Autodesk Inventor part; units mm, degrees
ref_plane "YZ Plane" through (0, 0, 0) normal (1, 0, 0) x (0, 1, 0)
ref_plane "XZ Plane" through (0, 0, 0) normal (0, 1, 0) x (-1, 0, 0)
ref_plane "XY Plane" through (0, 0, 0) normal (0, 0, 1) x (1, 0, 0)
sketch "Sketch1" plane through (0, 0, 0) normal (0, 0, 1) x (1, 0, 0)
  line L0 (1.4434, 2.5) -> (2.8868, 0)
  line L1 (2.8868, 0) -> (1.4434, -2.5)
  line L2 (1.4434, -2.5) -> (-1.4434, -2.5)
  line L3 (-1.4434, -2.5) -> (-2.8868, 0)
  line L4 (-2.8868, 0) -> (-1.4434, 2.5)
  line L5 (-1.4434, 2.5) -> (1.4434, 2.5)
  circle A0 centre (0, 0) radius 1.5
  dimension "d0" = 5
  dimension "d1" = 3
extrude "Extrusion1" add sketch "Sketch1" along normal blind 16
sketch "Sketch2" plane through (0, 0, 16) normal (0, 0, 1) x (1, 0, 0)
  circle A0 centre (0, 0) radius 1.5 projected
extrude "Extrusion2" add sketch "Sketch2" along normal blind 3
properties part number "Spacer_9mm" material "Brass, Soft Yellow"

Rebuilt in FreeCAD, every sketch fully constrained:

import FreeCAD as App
import Part
import Sketcher

V = App.Vector
Q = App.Units.Quantity


def add_polygon(sketch, points):
    """Adds a closed chain of lines whose ends are joined by coincident constraints."""
    first, n = sketch.GeometryCount, len(points)
    for a, b in zip(points, points[1:] + points[:1]):
        sketch.addGeometry(Part.LineSegment(App.Vector(*a, 0), App.Vector(*b, 0)), False)
    for i in range(n):
        sketch.addConstraint(Sketcher.Constraint("Coincident", first + i, 2, first + (i + 1) % n, 1))

doc = App.newDocument("Part")
params = doc.addObject("Spreadsheet::Sheet", "Params")
for row, (alias, value) in enumerate([
    ("sketch1_diameter", "3 mm"),
    ("pad1_length", "16 mm"),
    ("sketch2_diameter", "3 mm"),
    ("pad2_length", "3 mm"),
], start=1):
    params.set(f"A{row}", alias)
    params.set(f"B{row}", "=" + value)
    params.setAlias(f"B{row}", alias)

body = doc.addObject("PartDesign::Body", "Body")
body.AllowCompound = True

# Sketch on XY plane
sketch1 = doc.addObject("Sketcher::SketchObject", "Sketch")
body.addObject(sketch1)
sketch1.AttachmentSupport = (doc.XY_Plane, [""])
sketch1.MapMode = "FlatFace"
add_polygon(sketch1, [(2.9, 0), (1.4, 2.5), (-1.4, 2.5), (-2.9, 0), (-1.4, -2.5), (1.4, -2.5)])  # lines 0-5
sketch1.addGeometry(Part.Circle(V(0, 0, 0), V(0, 0, 1), 1.5), False)  # 6
sketch1.addConstraint(Sketcher.Constraint("Horizontal", 1))
sketch1.addConstraint(Sketcher.Constraint("Horizontal", 4))
sketch1.addConstraint(Sketcher.Constraint("Coincident", 6, 3, -1, 1))
sketch1.addConstraint(Sketcher.Constraint("Symmetric", 0, 2, 3, 2, -1, 1))
sketch1.addConstraint(Sketcher.Constraint("Symmetric", 2, 2, 5, 2, -1, 1))
sketch1.addConstraint(Sketcher.Constraint("PointOnObject", 2, 2, -1))
sketch1.addConstraint(Sketcher.Constraint("Parallel", 2, 5))
sketch1.addConstraint(Sketcher.Constraint("Vertical", 1, 2, 3, 2))
sketch1.addConstraint(Sketcher.Constraint("Diameter", 6, 3.0))
sketch1.addConstraint(Sketcher.Constraint("DistanceY", 3, 2, 1, 2, 5.0))
sketch1.addConstraint(Sketcher.Constraint("Angle", 0, Q("120.0004 deg")))
sketch1.addConstraint(Sketcher.Constraint("DistanceX", 1, 2, 1, 1, 2.8868))
sketch1.setExpression("Constraints[14]", "Params.sketch1_diameter")
pad1 = doc.addObject("PartDesign::Pad", "Pad")
body.addObject(pad1)
pad1.Profile = sketch1
pad1.setExpression("Length", "Params.pad1_length")

# Sketch on XY plane
sketch2 = doc.addObject("Sketcher::SketchObject", "Sketch001")
body.addObject(sketch2)
sketch2.AttachmentSupport = (doc.XY_Plane, [""])
sketch2.MapMode = "FlatFace"
sketch2.AttachmentOffset = App.Placement(V(0, 0, 16), App.Rotation())
sketch2.addGeometry(Part.Circle(V(0, 0, 0), V(0, 0, 1), 1.5), False)
sketch2.addConstraint(Sketcher.Constraint("Coincident", 0, 3, -1, 1))
sketch2.addConstraint(Sketcher.Constraint("Diameter", 0, 3.0))
sketch2.setExpression("Constraints[1]", "Params.sketch2_diameter")
pad2 = doc.addObject("PartDesign::Pad", "Pad001")
body.addObject(pad2)
pad2.Profile = sketch2
pad2.setExpression("Length", "Params.pad2_length")

doc.recompute()
